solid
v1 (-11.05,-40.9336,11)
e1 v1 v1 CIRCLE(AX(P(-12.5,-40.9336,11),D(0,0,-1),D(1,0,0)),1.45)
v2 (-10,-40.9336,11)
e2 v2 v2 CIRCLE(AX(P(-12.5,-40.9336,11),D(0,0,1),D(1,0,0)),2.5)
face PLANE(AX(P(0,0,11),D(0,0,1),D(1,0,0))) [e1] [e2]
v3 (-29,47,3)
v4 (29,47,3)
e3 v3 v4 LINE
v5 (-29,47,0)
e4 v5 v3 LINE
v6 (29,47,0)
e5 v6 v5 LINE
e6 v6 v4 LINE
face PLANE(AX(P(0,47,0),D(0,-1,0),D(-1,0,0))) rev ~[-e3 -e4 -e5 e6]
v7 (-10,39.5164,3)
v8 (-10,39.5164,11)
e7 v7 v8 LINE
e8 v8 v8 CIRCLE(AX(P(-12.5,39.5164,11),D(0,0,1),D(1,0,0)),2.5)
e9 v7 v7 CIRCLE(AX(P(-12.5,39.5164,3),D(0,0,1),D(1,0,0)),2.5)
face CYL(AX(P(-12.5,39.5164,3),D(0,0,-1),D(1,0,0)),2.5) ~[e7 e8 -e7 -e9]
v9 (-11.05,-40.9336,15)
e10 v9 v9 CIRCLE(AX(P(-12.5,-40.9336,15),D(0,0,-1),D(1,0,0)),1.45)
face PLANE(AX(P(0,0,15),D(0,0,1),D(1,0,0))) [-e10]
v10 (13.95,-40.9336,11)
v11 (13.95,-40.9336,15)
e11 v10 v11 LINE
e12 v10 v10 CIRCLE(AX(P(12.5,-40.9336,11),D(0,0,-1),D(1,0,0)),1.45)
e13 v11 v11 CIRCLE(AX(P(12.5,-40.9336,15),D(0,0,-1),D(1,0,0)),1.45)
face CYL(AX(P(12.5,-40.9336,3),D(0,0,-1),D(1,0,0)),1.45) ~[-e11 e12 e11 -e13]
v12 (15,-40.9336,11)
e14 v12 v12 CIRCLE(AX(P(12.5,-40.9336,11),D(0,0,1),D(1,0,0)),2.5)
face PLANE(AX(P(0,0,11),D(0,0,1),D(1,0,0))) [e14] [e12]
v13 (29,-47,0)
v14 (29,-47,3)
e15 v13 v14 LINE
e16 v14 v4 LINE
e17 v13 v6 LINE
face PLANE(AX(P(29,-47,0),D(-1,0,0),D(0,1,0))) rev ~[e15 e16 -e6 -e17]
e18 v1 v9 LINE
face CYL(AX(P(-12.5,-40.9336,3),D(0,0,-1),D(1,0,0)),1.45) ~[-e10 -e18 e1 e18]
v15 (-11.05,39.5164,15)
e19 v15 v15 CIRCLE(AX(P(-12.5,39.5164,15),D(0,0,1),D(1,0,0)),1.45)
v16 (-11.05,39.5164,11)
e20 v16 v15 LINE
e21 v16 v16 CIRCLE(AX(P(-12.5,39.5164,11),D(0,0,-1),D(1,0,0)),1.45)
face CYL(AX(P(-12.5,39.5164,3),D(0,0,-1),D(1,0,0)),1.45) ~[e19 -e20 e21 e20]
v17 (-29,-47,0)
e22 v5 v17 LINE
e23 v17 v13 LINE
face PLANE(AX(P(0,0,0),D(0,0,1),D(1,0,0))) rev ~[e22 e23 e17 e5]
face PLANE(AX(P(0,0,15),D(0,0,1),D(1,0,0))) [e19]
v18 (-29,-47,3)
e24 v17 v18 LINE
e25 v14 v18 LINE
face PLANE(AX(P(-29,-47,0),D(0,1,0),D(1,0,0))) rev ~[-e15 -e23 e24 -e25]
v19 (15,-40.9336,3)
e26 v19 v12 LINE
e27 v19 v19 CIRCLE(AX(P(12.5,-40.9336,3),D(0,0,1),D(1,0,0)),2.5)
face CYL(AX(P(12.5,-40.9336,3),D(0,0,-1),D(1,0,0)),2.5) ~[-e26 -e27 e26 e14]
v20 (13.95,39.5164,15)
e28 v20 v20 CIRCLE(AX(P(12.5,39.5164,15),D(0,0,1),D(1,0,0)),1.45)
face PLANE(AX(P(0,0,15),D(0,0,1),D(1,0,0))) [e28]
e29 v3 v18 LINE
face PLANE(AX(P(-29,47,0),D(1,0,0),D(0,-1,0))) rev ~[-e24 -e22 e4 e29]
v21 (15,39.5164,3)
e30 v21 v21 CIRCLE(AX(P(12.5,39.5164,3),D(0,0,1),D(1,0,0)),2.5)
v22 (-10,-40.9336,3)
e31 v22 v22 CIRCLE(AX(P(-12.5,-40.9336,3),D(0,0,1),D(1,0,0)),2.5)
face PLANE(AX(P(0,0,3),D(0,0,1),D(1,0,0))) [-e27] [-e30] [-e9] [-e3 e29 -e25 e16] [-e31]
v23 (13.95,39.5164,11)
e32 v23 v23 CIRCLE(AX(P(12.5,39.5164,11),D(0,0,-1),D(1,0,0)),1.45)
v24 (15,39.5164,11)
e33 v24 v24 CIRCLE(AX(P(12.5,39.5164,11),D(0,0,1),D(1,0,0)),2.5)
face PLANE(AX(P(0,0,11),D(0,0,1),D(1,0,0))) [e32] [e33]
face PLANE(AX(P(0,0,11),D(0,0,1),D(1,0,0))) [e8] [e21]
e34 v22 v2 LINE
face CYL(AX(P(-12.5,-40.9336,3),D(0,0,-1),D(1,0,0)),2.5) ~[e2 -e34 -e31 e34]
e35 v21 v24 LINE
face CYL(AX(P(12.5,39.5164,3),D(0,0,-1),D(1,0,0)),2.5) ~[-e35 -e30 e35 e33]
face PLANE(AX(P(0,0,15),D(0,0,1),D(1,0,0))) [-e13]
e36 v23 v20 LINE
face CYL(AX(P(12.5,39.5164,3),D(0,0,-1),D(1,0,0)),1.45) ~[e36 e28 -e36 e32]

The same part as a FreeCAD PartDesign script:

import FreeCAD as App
import Part
import Sketcher

doc = App.newDocument("Part")
body = doc.addObject("PartDesign::Body", "Body")

# Sketch on XY plane
sketch1 = body.newObject("Sketcher::SketchObject", "Sketch")
sketch1.AttachmentSupport = (doc.getObject("XY_Plane"), [""])
sketch1.MapMode = "FlatFace"
sketch1.addGeometry([
    Part.LineSegment(App.Vector(-29, 47, 0), App.Vector(-29, -47, 0)),
    Part.LineSegment(App.Vector(-29, -47, 0), App.Vector(29, -47, 0)),
    Part.LineSegment(App.Vector(29, -47, 0), App.Vector(29, 47, 0)),
    Part.LineSegment(App.Vector(29, 47, 0), App.Vector(-29, 47, 0)),
], False)
sketch1.addConstraint([
    Sketcher.Constraint("Coincident", 0, 2, 1, 1),
    Sketcher.Constraint("Coincident", 1, 2, 2, 1),
    Sketcher.Constraint("Coincident", 2, 2, 3, 1),
    Sketcher.Constraint("Coincident", 3, 2, 0, 1),
    Sketcher.Constraint("Vertical", 0),
    Sketcher.Constraint("Horizontal", 1),
    Sketcher.Constraint("Vertical", 2),
    Sketcher.Constraint("Horizontal", 3),
    Sketcher.Constraint("Symmetric", 0, 2, 2, 2, -1, 1),
    Sketcher.Constraint("DistanceX", 1, 1, 1, 2, 58.0),
    Sketcher.Constraint("DistanceY", 0, 2, 0, 1, 94.0),
])
pad1 = body.newObject("PartDesign::Pad", "Pad")
pad1.Profile = sketch1
pad1.Length = 3

# Sketch on XY plane
sketch2 = body.newObject("Sketcher::SketchObject", "Sketch001")
sketch2.AttachmentSupport = (doc.getObject("XY_Plane"), [""])
sketch2.MapMode = "FlatFace"
sketch2.AttachmentOffset = App.Placement(App.Vector(0, 0, 3), App.Rotation())
sketch2.addGeometry([
    Part.Circle(App.Vector(12.5, -40.9336, 0), App.Vector(0, 0, 1), 1.45),
    Part.Circle(App.Vector(-12.5, -40.9336, 0), App.Vector(0, 0, 1), 1.45),
    Part.Circle(App.Vector(-12.5, 39.5164, 0), App.Vector(0, 0, 1), 1.45),
    Part.Circle(App.Vector(12.5, 39.5164, 0), App.Vector(0, 0, 1), 1.45),
], False)
sketch2.addConstraint([
    Sketcher.Constraint("Equal", 0, 1),
    Sketcher.Constraint("Equal", 1, 2),
    Sketcher.Constraint("Equal", 2, 3),
    Sketcher.Constraint("Symmetric", 0, 3, 1, 3, -2),
    Sketcher.Constraint("Symmetric", 2, 3, 3, 3, -2),
    Sketcher.Constraint("Vertical", 1, 3, 2, 3),
    Sketcher.Constraint("Diameter", 0, 2.9),
    Sketcher.Constraint("DistanceX", -1, 1, 0, 3, 12.5),
    Sketcher.Constraint("DistanceY", 1, 3, 2, 3, 80.45),
    Sketcher.Constraint("DistanceY", 0, 3, -1, 1, 40.9336),
])
pad2 = body.newObject("PartDesign::Pad", "Pad001")
pad2.Profile = sketch2
pad2.Length = 12

# Sketch on XY plane
sketch3 = body.newObject("Sketcher::SketchObject", "Sketch002")
sketch3.AttachmentSupport = (doc.getObject("XY_Plane"), [""])
sketch3.MapMode = "FlatFace"
sketch3.AttachmentOffset = App.Placement(App.Vector(0, 0, 3), App.Rotation())
sketch3.addGeometry([
    Part.Circle(App.Vector(12.5, 39.5164, 0), App.Vector(0, 0, 1), 2.5),
    Part.Circle(App.Vector(-12.5, 39.5164, 0), App.Vector(0, 0, 1), 2.5),
    Part.Circle(App.Vector(-12.5, -40.9336, 0), App.Vector(0, 0, 1), 2.5),
    Part.Circle(App.Vector(12.5, -40.9336, 0), App.Vector(0, 0, 1), 2.5),
], False)
sketch3.addConstraint([
    Sketcher.Constraint("Equal", 0, 1),
    Sketcher.Constraint("Equal", 1, 2),
    Sketcher.Constraint("Equal", 2, 3),
    Sketcher.Constraint("Symmetric", 0, 3, 1, 3, -2),
    Sketcher.Constraint("Symmetric", 2, 3, 3, 3, -2),
    Sketcher.Constraint("Vertical", 1, 3, 2, 3),
    Sketcher.Constraint("Diameter", 0, 5.0),
    Sketcher.Constraint("DistanceX", 1, 3, 0, 3, 25.0),
    Sketcher.Constraint("DistanceY", 2, 3, 1, 3, 80.45),
    Sketcher.Constraint("DistanceY", -1, 1, 0, 3, 39.5164),
])
pad3 = body.newObject("PartDesign::Pad", "Pad002")
pad3.Profile = sketch3
pad3.Length = 8

doc.recompute()
